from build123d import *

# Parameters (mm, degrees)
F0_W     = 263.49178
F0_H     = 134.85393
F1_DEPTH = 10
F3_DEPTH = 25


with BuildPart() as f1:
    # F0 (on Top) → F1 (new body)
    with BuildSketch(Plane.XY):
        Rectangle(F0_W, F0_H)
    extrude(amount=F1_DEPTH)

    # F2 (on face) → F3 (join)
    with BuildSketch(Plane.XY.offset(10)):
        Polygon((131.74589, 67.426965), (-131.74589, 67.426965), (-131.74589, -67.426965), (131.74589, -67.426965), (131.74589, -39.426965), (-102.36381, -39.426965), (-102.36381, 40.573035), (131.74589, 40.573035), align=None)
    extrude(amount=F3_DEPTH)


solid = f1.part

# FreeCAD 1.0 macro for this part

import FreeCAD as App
import Part
import Sketcher
Q = App.Units.Quantity


def add_polygon(sketch, points):
    """Adds a closed chain of lines whose ends are joined by coincident constraints."""
    first, n = sketch.GeometryCount, len(points)
    for a, b in zip(points, points[1:] + points[:1]):
        sketch.addGeometry(Part.LineSegment(App.Vector(*a, 0), App.Vector(*b, 0)), False)
    for i in range(n):
        sketch.addConstraint(Sketcher.Constraint("Coincident", first + i, 2, first + (i + 1) % n, 1))

doc = App.newDocument("Part")
body = doc.addObject("PartDesign::Body", "Body")

# Sketch on XY plane
sketch1 = body.newObject("Sketcher::SketchObject", "Sketch")
sketch1.AttachmentSupport = (doc.getObject("XY_Plane"), [""])
sketch1.MapMode = "FlatFace"
add_polygon(sketch1, [(-131.74589, 67.426965), (-131.74589, -67.426965), (131.74589, -67.426965), (131.74589, 67.426965)])  # lines 0-3
sketch1.addConstraint([
    Sketcher.Constraint("Vertical", 0),
    Sketcher.Constraint("Horizontal", 1),
    Sketcher.Constraint("Vertical", 2),
    Sketcher.Constraint("Horizontal", 3),
    Sketcher.Constraint("Symmetric", 0, 2, 2, 2, -1, 1),
    Sketcher.Constraint("DistanceX", 1, 1, 1, 2, Q("263.49178 mm")),
    Sketcher.Constraint("DistanceY", 0, 2, 0, 1, Q("134.85393 mm")),
])
pad1 = body.newObject("PartDesign::Pad", "Pad")
pad1.Profile = sketch1
pad1.Length = 10

# Sketch on XY plane
sketch2 = body.newObject("Sketcher::SketchObject", "Sketch001")
sketch2.AttachmentSupport = (doc.getObject("XY_Plane"), [""])
sketch2.MapMode = "FlatFace"
sketch2.AttachmentOffset = App.Placement(App.Vector(0, 0, 10), App.Rotation())
add_polygon(sketch2, [(131.74589, 67.426965), (-131.74589, 67.426965), (-131.74589, -67.426965), (131.74589, -67.426965), (131.74589, -39.426965), (-102.36381, -39.426965), (-102.36381, 40.573035), (131.74589, 40.573035)])  # lines 0-7
sketch2.addConstraint([
    Sketcher.Constraint("Horizontal", 0),
    Sketcher.Constraint("Vertical", 1),
    Sketcher.Constraint("Horizontal", 2),
    Sketcher.Constraint("Vertical", 3),
    Sketcher.Constraint("Horizontal", 4),
    Sketcher.Constraint("Vertical", 5),
    Sketcher.Constraint("Horizontal", 6),
    Sketcher.Constraint("Vertical", 7),
    Sketcher.Constraint("Symmetric", 0, 2, 2, 2, -1, 1),
    Sketcher.Constraint("Vertical", 3, 2, 6, 2),
    Sketcher.Constraint("DistanceY", 3, 1, 3, 2, Q("28 mm")),
    Sketcher.Constraint("DistanceY", 5, 1, 5, 2, Q("80 mm")),
    Sketcher.Constraint("DistanceX", 4, 2, 4, 1, Q("234.1097 mm")),
    Sketcher.Constraint("DistanceX", 0, 2, 0, 1, Q("263.49178 mm")),
    Sketcher.Constraint("DistanceY", 1, 2, 1, 1, Q("134.85393 mm")),
])
pad2 = body.newObject("PartDesign::Pad", "Pad001")
pad2.Profile = sketch2
pad2.Length = 25

doc.recompute()
